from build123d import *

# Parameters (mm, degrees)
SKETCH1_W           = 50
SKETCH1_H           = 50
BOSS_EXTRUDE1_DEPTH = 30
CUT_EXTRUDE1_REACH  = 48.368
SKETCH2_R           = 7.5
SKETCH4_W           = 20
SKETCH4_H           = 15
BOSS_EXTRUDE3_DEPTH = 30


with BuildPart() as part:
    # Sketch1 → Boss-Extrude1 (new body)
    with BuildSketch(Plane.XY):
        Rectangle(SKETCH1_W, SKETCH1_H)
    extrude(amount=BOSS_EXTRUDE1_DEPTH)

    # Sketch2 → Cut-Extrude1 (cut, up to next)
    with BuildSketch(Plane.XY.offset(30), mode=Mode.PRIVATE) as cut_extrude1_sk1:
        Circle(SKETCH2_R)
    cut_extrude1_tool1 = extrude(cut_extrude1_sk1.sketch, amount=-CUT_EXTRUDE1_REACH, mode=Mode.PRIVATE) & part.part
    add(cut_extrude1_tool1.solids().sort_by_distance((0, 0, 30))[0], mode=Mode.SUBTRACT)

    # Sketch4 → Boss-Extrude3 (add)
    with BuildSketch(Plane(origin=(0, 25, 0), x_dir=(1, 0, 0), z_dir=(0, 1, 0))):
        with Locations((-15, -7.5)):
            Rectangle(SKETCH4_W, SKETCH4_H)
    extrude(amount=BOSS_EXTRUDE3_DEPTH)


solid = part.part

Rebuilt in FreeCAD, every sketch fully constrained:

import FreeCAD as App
import Part
import Sketcher

V = App.Vector
Q = App.Units.Quantity


def add_polygon(sketch, points):
    """Adds a closed chain of lines whose ends are joined by coincident constraints."""
    first, n = sketch.GeometryCount, len(points)
    for a, b in zip(points, points[1:] + points[:1]):
        sketch.addGeometry(Part.LineSegment(App.Vector(*a, 0), App.Vector(*b, 0)), False)
    for i in range(n):
        sketch.addConstraint(Sketcher.Constraint("Coincident", first + i, 2, first + (i + 1) % n, 1))

doc = App.newDocument("Part")
body = doc.addObject("PartDesign::Body", "Body")

# Sketch on XY plane
sketch1 = body.newObject("Sketcher::SketchObject", "Sketch")
sketch1.AttachmentSupport = (doc.getObject("XY_Plane"), [""])
sketch1.MapMode = "FlatFace"
add_polygon(sketch1, [(-25, 25), (-25, -25), (25, -25), (25, 25)])  # lines 0-3
sketch1.addConstraint(Sketcher.Constraint("Vertical", 0))
sketch1.addConstraint(Sketcher.Constraint("Horizontal", 1))
sketch1.addConstraint(Sketcher.Constraint("Vertical", 2))
sketch1.addConstraint(Sketcher.Constraint("Horizontal", 3))
sketch1.addConstraint(Sketcher.Constraint("Symmetric", 0, 2, 2, 2, -1, 1))
sketch1.addConstraint(Sketcher.Constraint("Equal", 3, 0))
sketch1.addConstraint(Sketcher.Constraint("DistanceX", 1, 1, 1, 2, Q("50 mm")))
pad1 = body.newObject("PartDesign::Pad", "Pad")
pad1.Profile = sketch1
pad1.Length = 30

# Sketch on XY plane
sketch2 = body.newObject("Sketcher::SketchObject", "Sketch001")
sketch2.AttachmentSupport = (doc.getObject("XY_Plane"), [""])
sketch2.MapMode = "FlatFace"
sketch2.AttachmentOffset = App.Placement(V(0, 0, 30), App.Rotation())
sketch2.addGeometry(Part.Circle(V(0, 0, 0), V(0, 0, 1), 8), False)
sketch2.addConstraint(Sketcher.Constraint("Coincident", 0, 3, -1, 1))
sketch2.addConstraint(Sketcher.Constraint("Diameter", 0, Q("15 mm")))
pocket1 = body.newObject("PartDesign::Pocket", "Pocket")
pocket1.Profile = sketch2
pocket1.Type = "UpToFirst"

# Sketch on XZ plane
sketch3 = body.newObject("Sketcher::SketchObject", "Sketch002")
sketch3.AttachmentSupport = (doc.getObject("XZ_Plane"), [""])
sketch3.MapMode = "FlatFace"
sketch3.AttachmentOffset = App.Placement(V(0, 0, -25), App.Rotation())
add_polygon(sketch3, [(-25, 0), (-25, 15), (-5, 15), (-5, 0)])  # lines 0-3
sketch3.addConstraint(Sketcher.Constraint("Vertical", 0))
sketch3.addConstraint(Sketcher.Constraint("Horizontal", 1))
sketch3.addConstraint(Sketcher.Constraint("Vertical", 2))
sketch3.addConstraint(Sketcher.Constraint("Horizontal", 3))
sketch3.addConstraint(Sketcher.Constraint("PointOnObject", 2, 2, -1))
sketch3.addConstraint(Sketcher.Constraint("DistanceX", 1, 1, 1, 2, Q("20 mm")))
sketch3.addConstraint(Sketcher.Constraint("DistanceY", 0, 1, 0, 2, Q("15 mm")))
sketch3.addConstraint(Sketcher.Constraint("DistanceX", 0, 2, -1, 1, Q("25 mm")))
pad2 = body.newObject("PartDesign::Pad", "Pad001")
pad2.Profile = sketch3
pad2.Length = 30
pad2.Reversed = True

doc.recompute()
